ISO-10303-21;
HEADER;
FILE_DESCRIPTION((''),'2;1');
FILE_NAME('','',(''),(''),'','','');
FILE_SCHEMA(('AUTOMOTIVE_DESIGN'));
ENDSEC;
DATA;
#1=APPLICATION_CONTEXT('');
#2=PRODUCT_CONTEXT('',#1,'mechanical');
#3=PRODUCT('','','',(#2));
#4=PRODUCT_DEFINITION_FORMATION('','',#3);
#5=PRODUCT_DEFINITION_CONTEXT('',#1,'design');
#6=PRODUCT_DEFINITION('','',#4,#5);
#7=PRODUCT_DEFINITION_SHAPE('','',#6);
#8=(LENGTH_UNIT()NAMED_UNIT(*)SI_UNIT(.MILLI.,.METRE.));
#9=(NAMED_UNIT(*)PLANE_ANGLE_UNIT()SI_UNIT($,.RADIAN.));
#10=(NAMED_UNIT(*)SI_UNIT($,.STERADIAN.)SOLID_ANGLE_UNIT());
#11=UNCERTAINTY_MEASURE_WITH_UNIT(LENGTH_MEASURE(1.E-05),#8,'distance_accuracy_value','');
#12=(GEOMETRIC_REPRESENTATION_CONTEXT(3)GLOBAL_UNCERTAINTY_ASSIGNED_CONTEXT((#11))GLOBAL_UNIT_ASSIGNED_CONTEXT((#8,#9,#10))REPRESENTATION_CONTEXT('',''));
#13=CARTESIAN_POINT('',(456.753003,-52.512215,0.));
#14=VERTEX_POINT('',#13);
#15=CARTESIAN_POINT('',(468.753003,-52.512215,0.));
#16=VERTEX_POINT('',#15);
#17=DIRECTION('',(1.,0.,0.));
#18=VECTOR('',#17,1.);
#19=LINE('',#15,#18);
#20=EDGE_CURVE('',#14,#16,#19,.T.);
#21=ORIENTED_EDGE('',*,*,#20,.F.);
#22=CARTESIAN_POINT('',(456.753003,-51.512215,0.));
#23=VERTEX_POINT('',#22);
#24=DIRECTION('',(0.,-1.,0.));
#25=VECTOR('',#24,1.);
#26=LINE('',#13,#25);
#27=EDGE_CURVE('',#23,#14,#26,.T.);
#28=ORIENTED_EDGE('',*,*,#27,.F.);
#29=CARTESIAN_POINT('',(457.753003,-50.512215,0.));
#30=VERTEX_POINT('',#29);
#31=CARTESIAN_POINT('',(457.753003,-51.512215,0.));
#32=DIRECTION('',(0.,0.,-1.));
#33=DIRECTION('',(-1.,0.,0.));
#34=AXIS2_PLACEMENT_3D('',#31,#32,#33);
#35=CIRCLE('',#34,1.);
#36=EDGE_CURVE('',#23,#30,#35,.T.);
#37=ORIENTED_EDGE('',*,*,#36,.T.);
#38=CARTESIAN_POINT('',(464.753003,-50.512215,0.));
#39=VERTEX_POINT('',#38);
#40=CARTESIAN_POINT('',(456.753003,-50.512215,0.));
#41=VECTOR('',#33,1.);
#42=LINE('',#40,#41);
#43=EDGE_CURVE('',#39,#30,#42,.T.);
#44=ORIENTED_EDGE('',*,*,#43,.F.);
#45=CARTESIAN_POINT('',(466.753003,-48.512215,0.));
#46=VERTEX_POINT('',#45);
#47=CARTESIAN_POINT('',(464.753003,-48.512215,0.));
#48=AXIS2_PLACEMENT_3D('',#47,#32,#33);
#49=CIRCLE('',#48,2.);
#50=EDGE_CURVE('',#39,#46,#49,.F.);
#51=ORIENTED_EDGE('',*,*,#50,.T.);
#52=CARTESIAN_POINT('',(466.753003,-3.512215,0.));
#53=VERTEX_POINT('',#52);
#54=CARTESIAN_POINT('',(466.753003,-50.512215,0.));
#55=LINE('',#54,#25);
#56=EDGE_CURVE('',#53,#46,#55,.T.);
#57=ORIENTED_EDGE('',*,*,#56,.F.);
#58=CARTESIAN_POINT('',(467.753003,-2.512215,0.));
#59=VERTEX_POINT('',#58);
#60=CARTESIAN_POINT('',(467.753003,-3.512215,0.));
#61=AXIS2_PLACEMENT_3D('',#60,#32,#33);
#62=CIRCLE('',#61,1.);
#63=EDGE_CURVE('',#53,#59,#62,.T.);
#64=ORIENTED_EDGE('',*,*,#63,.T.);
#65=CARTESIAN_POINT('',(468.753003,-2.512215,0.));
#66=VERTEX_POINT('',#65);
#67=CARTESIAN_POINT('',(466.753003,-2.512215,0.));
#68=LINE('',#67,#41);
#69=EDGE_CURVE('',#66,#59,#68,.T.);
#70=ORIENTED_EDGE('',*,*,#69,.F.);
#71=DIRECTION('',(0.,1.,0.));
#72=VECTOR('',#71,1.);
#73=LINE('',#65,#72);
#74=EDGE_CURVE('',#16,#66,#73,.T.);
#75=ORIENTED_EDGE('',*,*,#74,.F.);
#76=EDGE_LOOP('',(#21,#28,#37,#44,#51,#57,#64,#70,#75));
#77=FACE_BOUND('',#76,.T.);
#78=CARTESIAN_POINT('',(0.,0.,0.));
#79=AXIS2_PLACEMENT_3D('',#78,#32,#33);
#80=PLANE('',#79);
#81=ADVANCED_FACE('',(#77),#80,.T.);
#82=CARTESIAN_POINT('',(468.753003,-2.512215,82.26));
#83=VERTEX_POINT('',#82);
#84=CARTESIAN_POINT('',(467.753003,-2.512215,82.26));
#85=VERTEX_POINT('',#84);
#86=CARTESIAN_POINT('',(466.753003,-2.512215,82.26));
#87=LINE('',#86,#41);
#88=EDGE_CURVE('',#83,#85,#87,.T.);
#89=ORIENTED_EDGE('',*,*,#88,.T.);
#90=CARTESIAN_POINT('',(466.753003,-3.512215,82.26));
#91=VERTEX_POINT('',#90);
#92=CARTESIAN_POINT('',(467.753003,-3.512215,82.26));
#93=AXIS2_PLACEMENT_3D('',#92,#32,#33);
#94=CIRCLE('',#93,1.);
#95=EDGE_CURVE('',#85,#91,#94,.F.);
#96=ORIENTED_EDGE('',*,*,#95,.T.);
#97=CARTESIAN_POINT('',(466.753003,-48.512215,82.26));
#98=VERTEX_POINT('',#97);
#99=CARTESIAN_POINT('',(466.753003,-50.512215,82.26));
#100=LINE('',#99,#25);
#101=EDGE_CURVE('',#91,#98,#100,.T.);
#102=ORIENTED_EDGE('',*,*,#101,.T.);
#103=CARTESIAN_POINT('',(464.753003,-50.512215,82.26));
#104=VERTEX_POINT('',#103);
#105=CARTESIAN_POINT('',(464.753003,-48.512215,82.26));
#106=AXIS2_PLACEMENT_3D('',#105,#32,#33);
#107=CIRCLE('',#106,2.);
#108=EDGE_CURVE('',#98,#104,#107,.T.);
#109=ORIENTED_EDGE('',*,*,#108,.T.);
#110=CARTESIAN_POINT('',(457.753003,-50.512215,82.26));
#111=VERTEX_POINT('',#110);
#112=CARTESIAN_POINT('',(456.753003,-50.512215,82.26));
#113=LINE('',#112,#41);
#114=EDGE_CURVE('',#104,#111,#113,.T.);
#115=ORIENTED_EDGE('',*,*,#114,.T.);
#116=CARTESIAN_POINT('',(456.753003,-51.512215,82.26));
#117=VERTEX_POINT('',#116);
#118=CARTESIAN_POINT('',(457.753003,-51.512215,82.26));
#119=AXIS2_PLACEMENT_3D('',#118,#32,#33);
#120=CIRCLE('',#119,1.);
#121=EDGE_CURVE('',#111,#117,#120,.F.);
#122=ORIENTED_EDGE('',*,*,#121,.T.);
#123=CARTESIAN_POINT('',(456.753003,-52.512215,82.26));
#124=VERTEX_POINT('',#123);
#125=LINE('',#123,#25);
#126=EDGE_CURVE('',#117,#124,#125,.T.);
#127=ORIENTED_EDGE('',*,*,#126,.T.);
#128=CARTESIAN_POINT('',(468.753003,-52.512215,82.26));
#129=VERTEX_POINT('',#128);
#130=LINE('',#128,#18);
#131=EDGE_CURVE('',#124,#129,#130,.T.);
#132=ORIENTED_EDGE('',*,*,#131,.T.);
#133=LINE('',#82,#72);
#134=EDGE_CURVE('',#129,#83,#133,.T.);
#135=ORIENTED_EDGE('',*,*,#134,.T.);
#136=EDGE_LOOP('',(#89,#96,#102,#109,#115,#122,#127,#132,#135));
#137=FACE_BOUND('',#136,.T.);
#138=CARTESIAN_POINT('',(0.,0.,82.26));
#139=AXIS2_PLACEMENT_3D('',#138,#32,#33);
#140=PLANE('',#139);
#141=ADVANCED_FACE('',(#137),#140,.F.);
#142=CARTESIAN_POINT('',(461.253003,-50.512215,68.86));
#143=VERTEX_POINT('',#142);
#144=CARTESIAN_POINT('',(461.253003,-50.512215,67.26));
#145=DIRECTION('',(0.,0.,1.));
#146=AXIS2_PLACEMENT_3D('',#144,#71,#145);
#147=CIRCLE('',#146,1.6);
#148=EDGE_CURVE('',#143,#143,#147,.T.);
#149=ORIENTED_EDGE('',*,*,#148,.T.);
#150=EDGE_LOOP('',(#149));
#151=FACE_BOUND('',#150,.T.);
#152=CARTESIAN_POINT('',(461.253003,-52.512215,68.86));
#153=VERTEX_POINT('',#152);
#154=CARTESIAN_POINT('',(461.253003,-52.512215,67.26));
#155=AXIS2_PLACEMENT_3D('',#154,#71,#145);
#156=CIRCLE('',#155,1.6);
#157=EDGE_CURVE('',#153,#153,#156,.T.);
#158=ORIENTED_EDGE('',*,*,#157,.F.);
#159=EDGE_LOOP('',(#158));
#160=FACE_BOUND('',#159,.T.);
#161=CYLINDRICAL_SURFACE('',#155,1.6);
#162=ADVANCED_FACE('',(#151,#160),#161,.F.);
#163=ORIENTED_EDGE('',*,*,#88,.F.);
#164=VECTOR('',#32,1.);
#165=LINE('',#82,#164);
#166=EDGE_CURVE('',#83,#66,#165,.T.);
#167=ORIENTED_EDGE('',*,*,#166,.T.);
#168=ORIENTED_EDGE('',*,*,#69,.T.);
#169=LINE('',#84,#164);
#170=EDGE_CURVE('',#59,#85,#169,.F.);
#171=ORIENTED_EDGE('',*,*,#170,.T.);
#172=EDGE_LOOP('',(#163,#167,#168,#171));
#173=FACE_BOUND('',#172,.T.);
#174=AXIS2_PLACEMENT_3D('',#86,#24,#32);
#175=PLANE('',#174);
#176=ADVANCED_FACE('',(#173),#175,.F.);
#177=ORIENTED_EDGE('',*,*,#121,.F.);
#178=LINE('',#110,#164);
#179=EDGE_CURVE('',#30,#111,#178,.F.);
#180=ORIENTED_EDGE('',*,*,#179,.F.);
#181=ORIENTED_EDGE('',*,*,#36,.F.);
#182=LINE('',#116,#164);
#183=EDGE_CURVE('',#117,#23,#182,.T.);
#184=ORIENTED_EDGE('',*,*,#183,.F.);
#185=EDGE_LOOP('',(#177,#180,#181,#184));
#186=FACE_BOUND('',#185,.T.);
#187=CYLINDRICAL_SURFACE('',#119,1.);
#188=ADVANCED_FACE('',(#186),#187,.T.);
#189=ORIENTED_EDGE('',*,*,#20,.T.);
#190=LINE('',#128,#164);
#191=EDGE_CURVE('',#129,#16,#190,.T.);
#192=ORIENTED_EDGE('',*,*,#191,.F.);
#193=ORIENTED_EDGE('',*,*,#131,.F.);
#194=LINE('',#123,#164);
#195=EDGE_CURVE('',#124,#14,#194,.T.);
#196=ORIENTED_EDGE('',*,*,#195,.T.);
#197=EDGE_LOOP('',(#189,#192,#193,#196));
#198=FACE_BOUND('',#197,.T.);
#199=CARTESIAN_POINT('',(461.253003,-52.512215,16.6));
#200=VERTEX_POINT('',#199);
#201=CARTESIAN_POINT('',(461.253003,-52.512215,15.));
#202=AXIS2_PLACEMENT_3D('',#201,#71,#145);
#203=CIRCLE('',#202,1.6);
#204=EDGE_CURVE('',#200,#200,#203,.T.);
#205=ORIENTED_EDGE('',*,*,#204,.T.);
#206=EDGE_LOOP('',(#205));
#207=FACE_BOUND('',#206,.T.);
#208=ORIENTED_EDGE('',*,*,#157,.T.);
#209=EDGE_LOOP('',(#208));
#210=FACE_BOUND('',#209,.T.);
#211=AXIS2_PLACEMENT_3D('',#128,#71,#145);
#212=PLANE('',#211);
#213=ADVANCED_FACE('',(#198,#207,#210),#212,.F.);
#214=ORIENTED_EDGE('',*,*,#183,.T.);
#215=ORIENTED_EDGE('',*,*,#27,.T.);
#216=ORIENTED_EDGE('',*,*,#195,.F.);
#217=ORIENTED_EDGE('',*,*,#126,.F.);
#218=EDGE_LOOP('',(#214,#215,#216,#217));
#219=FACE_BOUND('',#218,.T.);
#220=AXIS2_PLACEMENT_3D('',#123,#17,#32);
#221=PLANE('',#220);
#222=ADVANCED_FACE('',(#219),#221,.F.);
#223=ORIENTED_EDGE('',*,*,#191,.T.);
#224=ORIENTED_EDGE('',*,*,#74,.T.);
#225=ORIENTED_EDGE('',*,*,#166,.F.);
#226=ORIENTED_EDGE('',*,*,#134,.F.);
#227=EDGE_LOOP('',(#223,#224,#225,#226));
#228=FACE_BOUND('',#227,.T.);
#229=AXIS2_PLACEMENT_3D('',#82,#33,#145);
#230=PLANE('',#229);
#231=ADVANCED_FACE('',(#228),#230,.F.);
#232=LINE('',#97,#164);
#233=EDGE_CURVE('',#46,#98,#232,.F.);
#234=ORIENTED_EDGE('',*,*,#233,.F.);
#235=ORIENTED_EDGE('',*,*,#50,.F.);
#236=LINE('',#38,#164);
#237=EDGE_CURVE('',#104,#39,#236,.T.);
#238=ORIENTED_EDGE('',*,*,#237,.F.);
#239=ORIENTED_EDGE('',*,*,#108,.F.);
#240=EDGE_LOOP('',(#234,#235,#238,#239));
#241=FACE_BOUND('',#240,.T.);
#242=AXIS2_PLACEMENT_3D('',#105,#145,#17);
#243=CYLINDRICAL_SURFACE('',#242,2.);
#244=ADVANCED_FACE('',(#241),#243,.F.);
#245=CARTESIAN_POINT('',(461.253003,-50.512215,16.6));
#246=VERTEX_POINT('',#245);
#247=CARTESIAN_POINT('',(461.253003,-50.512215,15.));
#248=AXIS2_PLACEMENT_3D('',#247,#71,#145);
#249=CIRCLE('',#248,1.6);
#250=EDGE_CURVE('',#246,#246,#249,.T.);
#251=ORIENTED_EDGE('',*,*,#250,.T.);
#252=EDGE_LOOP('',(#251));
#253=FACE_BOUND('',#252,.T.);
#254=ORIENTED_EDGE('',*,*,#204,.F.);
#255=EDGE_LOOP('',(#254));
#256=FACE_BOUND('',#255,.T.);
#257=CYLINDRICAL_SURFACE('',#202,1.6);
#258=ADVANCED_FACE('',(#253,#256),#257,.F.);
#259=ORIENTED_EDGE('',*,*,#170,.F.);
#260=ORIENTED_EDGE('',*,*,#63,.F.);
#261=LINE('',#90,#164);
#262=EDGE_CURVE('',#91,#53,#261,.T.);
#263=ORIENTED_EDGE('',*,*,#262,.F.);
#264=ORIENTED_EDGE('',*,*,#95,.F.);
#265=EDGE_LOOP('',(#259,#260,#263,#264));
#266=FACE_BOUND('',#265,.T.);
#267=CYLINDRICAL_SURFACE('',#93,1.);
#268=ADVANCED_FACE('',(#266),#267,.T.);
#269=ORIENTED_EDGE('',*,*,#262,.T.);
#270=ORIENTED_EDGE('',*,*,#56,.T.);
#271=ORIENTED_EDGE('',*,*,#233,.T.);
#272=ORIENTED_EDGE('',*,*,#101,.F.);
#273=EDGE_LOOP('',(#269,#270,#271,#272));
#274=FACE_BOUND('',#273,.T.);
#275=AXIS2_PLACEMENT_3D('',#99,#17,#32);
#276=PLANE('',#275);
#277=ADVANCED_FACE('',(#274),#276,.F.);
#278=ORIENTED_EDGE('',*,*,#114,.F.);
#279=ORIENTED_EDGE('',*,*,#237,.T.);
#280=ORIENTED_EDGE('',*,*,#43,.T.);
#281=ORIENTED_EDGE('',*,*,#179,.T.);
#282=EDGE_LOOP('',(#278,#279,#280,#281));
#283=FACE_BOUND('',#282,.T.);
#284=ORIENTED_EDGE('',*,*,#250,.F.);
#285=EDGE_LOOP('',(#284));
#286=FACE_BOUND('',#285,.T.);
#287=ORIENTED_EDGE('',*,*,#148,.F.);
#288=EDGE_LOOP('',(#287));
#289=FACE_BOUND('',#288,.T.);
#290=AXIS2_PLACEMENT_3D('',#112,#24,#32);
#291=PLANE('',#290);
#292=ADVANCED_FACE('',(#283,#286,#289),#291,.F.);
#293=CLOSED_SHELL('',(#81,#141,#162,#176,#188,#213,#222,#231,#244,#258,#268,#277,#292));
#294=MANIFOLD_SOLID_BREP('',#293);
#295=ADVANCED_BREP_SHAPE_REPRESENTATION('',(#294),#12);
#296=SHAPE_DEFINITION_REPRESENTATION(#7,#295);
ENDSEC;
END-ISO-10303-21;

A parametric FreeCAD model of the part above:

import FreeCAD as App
import Part
import Sketcher
from FreeCAD import Vector
Q = App.Units.Quantity


def edges_at(feature, points):
    """Names of the edges that pass closest to the given points."""
    edges = feature.Shape.Edges
    near = lambda p: min(range(len(edges)), key=lambda i: edges[i].distToShape(Part.Vertex(*p))[0])
    return sorted({f"Edge{near(p) + 1}" for p in points})

doc = App.newDocument("Part")
params = doc.addObject("Spreadsheet::Sheet", "Params")
for row, (alias, value) in enumerate([
    ("sketch1_width", "2 mm"),
    ("sketch1_width2", "10 mm"),
    ("sketch1_height", "50 mm"),
    ("pad1_length", "82.26 mm"),
    ("fillet_radius", "1 mm"),
    ("fillet2_radius", "2 mm"),
    ("sketch2_diameter", "3.2 mm"),
], start=1):
    params.set(f"A{row}", alias)
    params.set(f"B{row}", "=" + value)
    params.setAlias(f"B{row}", alias)

body = doc.addObject("PartDesign::Body", "Body")

# Sketch on XY plane
sketch1 = body.newObject("Sketcher::SketchObject", "Sketch")
sketch1.AttachmentSupport = (doc.getObject("XY_Plane"), [""])
sketch1.MapMode = "FlatFace"
sketch1.addGeometry([
    Part.LineSegment(Vector(468.753003, -52.512215, 0), Vector(468.753003, -2.512215, 0)),  # 0
    Part.LineSegment(Vector(468.753003, -2.512215, 0), Vector(466.753003, -2.512215, 0)),  # 1
    Part.LineSegment(Vector(466.753003, -2.512215, 0), Vector(466.753003, -50.512215, 0)),  # 2
    Part.LineSegment(Vector(466.753003, -50.512215, 0), Vector(456.753003, -50.512215, 0)),  # 3
    Part.LineSegment(Vector(456.753003, -50.512215, 0), Vector(456.753003, -52.512215, 0)),  # 4
    Part.LineSegment(Vector(456.753003, -52.512215, 0), Vector(468.753003, -52.512215, 0)),  # 5
], False)
sketch1.addConstraint([
    Sketcher.Constraint("Coincident", 0, 2, 1, 1),
    Sketcher.Constraint("Coincident", 1, 2, 2, 1),
    Sketcher.Constraint("Coincident", 2, 2, 3, 1),
    Sketcher.Constraint("Coincident", 3, 2, 4, 1),
    Sketcher.Constraint("Coincident", 4, 2, 5, 1),
    Sketcher.Constraint("Coincident", 5, 2, 0, 1),
    Sketcher.Constraint("Vertical", 0),
    Sketcher.Constraint("Horizontal", 1),
    Sketcher.Constraint("Vertical", 2),
    Sketcher.Constraint("Horizontal", 3),
    Sketcher.Constraint("Vertical", 4),
    Sketcher.Constraint("Horizontal", 5),
    Sketcher.Constraint("Equal", 1, 4),
    Sketcher.Constraint("DistanceX", 1, 2, 1, 1, Q("2 mm")),
    Sketcher.Constraint("DistanceX", 3, 2, 3, 1, Q("10 mm")),
    Sketcher.Constraint("DistanceY", 0, 1, 0, 2, Q("50 mm")),
    Sketcher.Constraint("DistanceX", -1, 1, 0, 2, Q("468.753003 mm")),
    Sketcher.Constraint("DistanceY", 0, 2, -1, 1, Q("2.512215 mm")),
])
sketch1.setExpression("Constraints[13]", "Params.sketch1_width")
sketch1.setExpression("Constraints[14]", "Params.sketch1_width2")
sketch1.setExpression("Constraints[15]", "Params.sketch1_height")
pad1 = body.newObject("PartDesign::Pad", "Pad")
pad1.Profile = sketch1
pad1.setExpression("Length", "Params.pad1_length")
doc.recompute()

fillet = body.newObject("PartDesign::Fillet", "Fillet")
fillet.Base = (pad1, edges_at(pad1, [(456.753, -50.512, 41.13), (466.753, -2.512, 41.13)]))
fillet.setExpression("Radius", "Params.fillet_radius")
doc.recompute()

fillet2 = body.newObject("PartDesign::Fillet", "Fillet001")
fillet2.Base = (fillet, edges_at(fillet, [(466.753, -50.512, 41.13)]))
fillet2.setExpression("Radius", "Params.fillet2_radius")

# Sketch on XZ plane
sketch2 = body.newObject("Sketcher::SketchObject", "Sketch001")
sketch2.AttachmentSupport = (doc.getObject("XZ_Plane"), [""])
sketch2.MapMode = "FlatFace"
sketch2.AttachmentOffset = App.Placement(Vector(0, 0, 50.512215), App.Rotation())
sketch2.addGeometry([
    Part.Circle(Vector(461.253003, 67.26, 0), Vector(0, 0, 1), 1.6),
    Part.Circle(Vector(461.253003, 15, 0), Vector(0, 0, 1), 1.6),
], False)
sketch2.addConstraint([
    Sketcher.Constraint("Equal", 0, 1),
    Sketcher.Constraint("Vertical", 0, 3, 1, 3),
    Sketcher.Constraint("Diameter", 0, Q("3.2 mm")),
    Sketcher.Constraint("DistanceY", -1, 1, 1, 3, Q("15 mm")),
    Sketcher.Constraint("DistanceY", -1, 1, 0, 3, Q("67.26 mm")),
    Sketcher.Constraint("DistanceX", -1, 1, 0, 3, Q("461.253003 mm")),
])
sketch2.setExpression("Constraints[2]", "Params.sketch2_diameter")
pocket1 = body.newObject("PartDesign::Pocket", "Pocket")
pocket1.Profile = sketch2
pocket1.Type = "ThroughAll"
pocket1.Reversed = True

doc.recompute()
